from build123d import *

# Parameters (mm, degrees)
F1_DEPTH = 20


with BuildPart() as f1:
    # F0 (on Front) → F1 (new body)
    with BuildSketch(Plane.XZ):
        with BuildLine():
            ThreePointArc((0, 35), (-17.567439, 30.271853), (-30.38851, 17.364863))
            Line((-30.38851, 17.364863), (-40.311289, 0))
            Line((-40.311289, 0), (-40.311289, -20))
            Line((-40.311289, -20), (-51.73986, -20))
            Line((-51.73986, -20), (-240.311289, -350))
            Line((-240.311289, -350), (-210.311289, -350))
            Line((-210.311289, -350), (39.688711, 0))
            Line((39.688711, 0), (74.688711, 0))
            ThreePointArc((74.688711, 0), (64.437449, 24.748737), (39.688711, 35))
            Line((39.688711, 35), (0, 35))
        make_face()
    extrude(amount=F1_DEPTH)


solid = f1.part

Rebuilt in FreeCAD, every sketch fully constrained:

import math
import FreeCAD as App
import Part
import Sketcher
from FreeCAD import Vector
Q = App.Units.Quantity

doc = App.newDocument("Part")
body = doc.addObject("PartDesign::Body", "Body")

sketch1 = doc.addObject("Sketcher::SketchObject", "Sketch")
body.addObject(sketch1)
sketch1.AttachmentSupport = (doc.XZ_Plane, [""])
sketch1.MapMode = "FlatFace"
sketch1.addGeometry([
    Part.ArcOfCircle(Part.Circle(Vector(0, 0, 0), Vector(0, 0, 1), 35), math.radians(90), math.radians(150)),
    Part.LineSegment(Vector(-30, 17, 0), Vector(-40, 0, 0)),
    Part.LineSegment(Vector(-40, 0, 0), Vector(-40, -20, 0)),
    Part.LineSegment(Vector(-40, -20, 0), Vector(-52, -20, 0)),
    Part.LineSegment(Vector(-52, -20, 0), Vector(-240, -350, 0)),
    Part.LineSegment(Vector(-240, -350, 0), Vector(-210, -350, 0)),
    Part.LineSegment(Vector(-210, -350, 0), Vector(40, 0, 0)),
    Part.LineSegment(Vector(40, 0, 0), Vector(75, 0, 0)),
    Part.ArcOfCircle(Part.Circle(Vector(40, 0, 0), Vector(0, 0, 1), 35), math.radians(0), math.radians(90)),
    Part.LineSegment(Vector(40, 35, 0), Vector(0, 35, 0)),
], False)
sketch1.addConstraint([
    Sketcher.Constraint("Tangent", 0, 2, 1, 1),
    Sketcher.Constraint("Coincident", 1, 2, 2, 1),
    Sketcher.Constraint("Coincident", 2, 2, 3, 1),
    Sketcher.Constraint("Coincident", 3, 2, 4, 1),
    Sketcher.Constraint("Coincident", 4, 2, 5, 1),
    Sketcher.Constraint("Coincident", 5, 2, 6, 1),
    Sketcher.Constraint("Coincident", 6, 2, 7, 1),
    Sketcher.Constraint("Coincident", 7, 2, 8, 1),
    Sketcher.Constraint("Tangent", 8, 2, 9, 1),
    Sketcher.Constraint("Tangent", 9, 2, 0, 1),
    Sketcher.Constraint("Vertical", 2),
    Sketcher.Constraint("Horizontal", 3),
    Sketcher.Constraint("Horizontal", 5),
    Sketcher.Constraint("Horizontal", 7),
    Sketcher.Constraint("Horizontal", 9),
    Sketcher.Constraint("Coincident", 0, 3, -1, 1),
    Sketcher.Constraint("Coincident", 6, 2, 8, 3),
    Sketcher.Constraint("Equal", 0, 8),
    Sketcher.Constraint("PointOnObject", 1, 2, -1),
    Sketcher.Constraint("Parallel", 1, 4),
    Sketcher.Constraint("Radius", 0, Q("35.000001 mm")),
    Sketcher.Constraint("DistanceX", 5, 1, 5, 2, Q("30 mm")),
    Sketcher.Constraint("DistanceY", 2, 2, 2, 1, Q("20 mm")),
    Sketcher.Constraint("Distance", 1, Q("20 mm")),
    Sketcher.Constraint("DistanceY", 4, 2, -1, 1, Q("350 mm")),
    Sketcher.Constraint("DistanceX", 1, 2, 8, 3, Q("80.000001 mm")),
    Sketcher.Constraint("DistanceX", 4, 2, 2, 2, Q("200 mm")),
])
pad1 = doc.addObject("PartDesign::Pad", "Pad")
body.addObject(pad1)
pad1.Profile = sketch1
pad1.Length = 20

doc.recompute()
